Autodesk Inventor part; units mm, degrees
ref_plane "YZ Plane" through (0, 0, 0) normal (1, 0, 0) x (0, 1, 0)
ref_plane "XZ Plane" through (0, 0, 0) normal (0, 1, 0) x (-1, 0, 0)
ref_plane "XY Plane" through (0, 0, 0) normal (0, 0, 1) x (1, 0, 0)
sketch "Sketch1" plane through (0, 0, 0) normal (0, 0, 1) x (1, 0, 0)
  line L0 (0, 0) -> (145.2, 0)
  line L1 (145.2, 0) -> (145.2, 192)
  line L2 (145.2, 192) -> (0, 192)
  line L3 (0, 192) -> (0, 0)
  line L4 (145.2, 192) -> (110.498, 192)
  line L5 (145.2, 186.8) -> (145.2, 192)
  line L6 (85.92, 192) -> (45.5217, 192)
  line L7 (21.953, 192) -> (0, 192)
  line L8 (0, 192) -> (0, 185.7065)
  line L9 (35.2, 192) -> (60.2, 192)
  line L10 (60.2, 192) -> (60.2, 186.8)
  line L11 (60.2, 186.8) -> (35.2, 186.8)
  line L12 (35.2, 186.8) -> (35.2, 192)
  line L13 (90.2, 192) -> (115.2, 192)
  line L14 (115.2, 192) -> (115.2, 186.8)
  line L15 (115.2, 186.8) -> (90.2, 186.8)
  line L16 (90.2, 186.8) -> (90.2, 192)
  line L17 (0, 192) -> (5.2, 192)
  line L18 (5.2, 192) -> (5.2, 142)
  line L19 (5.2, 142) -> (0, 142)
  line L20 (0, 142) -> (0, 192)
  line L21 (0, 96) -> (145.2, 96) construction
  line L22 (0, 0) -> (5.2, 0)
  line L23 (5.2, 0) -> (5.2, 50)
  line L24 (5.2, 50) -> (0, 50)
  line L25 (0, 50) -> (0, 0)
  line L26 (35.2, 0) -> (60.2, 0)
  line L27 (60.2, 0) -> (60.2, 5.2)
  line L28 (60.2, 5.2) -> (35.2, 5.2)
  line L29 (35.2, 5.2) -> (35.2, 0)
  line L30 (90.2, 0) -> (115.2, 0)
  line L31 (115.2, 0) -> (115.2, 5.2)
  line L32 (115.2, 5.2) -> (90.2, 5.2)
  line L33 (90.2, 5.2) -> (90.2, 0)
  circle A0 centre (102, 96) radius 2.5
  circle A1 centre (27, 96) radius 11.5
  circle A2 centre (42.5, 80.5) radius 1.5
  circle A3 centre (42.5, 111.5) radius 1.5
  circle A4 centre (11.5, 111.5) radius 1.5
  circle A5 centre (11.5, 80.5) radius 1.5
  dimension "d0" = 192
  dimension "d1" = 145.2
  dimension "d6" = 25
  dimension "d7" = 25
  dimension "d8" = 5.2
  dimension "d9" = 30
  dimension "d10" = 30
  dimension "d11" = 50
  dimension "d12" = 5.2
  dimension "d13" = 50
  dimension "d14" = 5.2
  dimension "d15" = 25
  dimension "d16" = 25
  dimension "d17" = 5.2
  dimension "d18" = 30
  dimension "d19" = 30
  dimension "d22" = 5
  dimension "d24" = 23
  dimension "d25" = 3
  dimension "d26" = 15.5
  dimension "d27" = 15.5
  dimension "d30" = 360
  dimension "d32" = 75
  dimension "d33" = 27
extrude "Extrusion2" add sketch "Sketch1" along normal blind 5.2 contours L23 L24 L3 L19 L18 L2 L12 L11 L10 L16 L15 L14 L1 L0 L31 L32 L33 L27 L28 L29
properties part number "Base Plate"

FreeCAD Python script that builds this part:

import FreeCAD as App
import Part
import Sketcher
from FreeCAD import Vector
Q = App.Units.Quantity


def add_polygon(sketch, points):
    """Adds a closed chain of lines whose ends are joined by coincident constraints."""
    first, n = sketch.GeometryCount, len(points)
    for a, b in zip(points, points[1:] + points[:1]):
        sketch.addGeometry(Part.LineSegment(App.Vector(*a, 0), App.Vector(*b, 0)), False)
    for i in range(n):
        sketch.addConstraint(Sketcher.Constraint("Coincident", first + i, 2, first + (i + 1) % n, 1))

doc = App.newDocument("Part")
body = doc.addObject("PartDesign::Body", "Body")

sketch1 = body.newObject("Sketcher::SketchObject", "Sketch")
sketch1.AttachmentSupport = (doc.getObject("XY_Plane"), [""])
sketch1.MapMode = "FlatFace"
add_polygon(sketch1, [(5.2, 50), (5.2, 0), (35.2, 0), (35.2, 5.2), (60.2, 5.2), (60.2, 0), (90.2, 0), (90.2, 5.2), (115.2, 5.2), (115.2, 0), (145.2, 0), (145.2, 192), (115.2, 192), (115.2, 186.8), (90.2, 186.8), (90.2, 192), (60.2, 192), (60.2, 186.8), (35.2, 186.8), (35.2, 192), (5.2, 192), (5.2, 142), (0, 142), (0, 50)])
sketch1.addGeometry(Part.Circle(Vector(11.5, 80.5, 0), Vector(0, 0, 1), 1.5), False)
sketch1.addGeometry(Part.Circle(Vector(42.5, 80.5, 0), Vector(0, 0, 1), 1.5), False)
sketch1.addGeometry(Part.Circle(Vector(11.5, 111.5, 0), Vector(0, 0, 1), 1.5), False)
sketch1.addGeometry(Part.Circle(Vector(27, 96, 0), Vector(0, 0, 1), 11.5), False)
sketch1.addGeometry(Part.Circle(Vector(42.5, 111.5, 0), Vector(0, 0, 1), 1.5), False)
sketch1.addGeometry(Part.Circle(Vector(102, 96, 0), Vector(0, 0, 1), 2.5), False)
sketch1.addConstraint([
    Sketcher.Constraint("Vertical", 0),
    Sketcher.Constraint("Horizontal", 1),
    Sketcher.Constraint("Vertical", 2),
    Sketcher.Constraint("Horizontal", 3),
    Sketcher.Constraint("Vertical", 4),
    Sketcher.Constraint("Horizontal", 5),
    Sketcher.Constraint("Vertical", 6),
    Sketcher.Constraint("Horizontal", 7),
    Sketcher.Constraint("Vertical", 8),
    Sketcher.Constraint("Horizontal", 9),
    Sketcher.Constraint("Vertical", 10),
    Sketcher.Constraint("Horizontal", 11),
    Sketcher.Constraint("Vertical", 12),
    Sketcher.Constraint("Horizontal", 13),
    Sketcher.Constraint("Vertical", 14),
    Sketcher.Constraint("Horizontal", 15),
    Sketcher.Constraint("Vertical", 16),
    Sketcher.Constraint("Horizontal", 17),
    Sketcher.Constraint("Vertical", 18),
    Sketcher.Constraint("Horizontal", 19),
    Sketcher.Constraint("Vertical", 20),
    Sketcher.Constraint("Horizontal", 21),
    Sketcher.Constraint("Vertical", 22),
    Sketcher.Constraint("Horizontal", 23),
    Sketcher.Constraint("Equal", 24, 25),
    Sketcher.Constraint("Equal", 25, 26),
    Sketcher.Constraint("Equal", 26, 28),
    Sketcher.Constraint("PointOnObject", 0, 2, -1),
    Sketcher.Constraint("PointOnObject", 4, 2, -1),
    Sketcher.Constraint("PointOnObject", 8, 2, -1),
    Sketcher.Constraint("PointOnObject", 21, 2, -2),
    Sketcher.Constraint("Horizontal", 24, 3, 25, 3),
    Sketcher.Constraint("Horizontal", 26, 3, 28, 3),
    Sketcher.Constraint("Horizontal", 27, 3, 29, 3),
    Sketcher.Constraint("Horizontal", 3, 2, 6, 2),
    Sketcher.Constraint("Horizontal", 11, 2, 14, 2),
    Sketcher.Constraint("Horizontal", 13, 2, 16, 2),
    Sketcher.Constraint("Horizontal", 15, 2, 18, 2),
    Sketcher.Constraint("Vertical", 24, 3, 26, 3),
    Sketcher.Constraint("Vertical", 25, 3, 28, 3),
    Sketcher.Constraint("Vertical", 8, 2, 11, 2),
    Sketcher.Constraint("Vertical", 6, 2, 13, 2),
    Sketcher.Constraint("Vertical", 4, 2, 15, 2),
    Sketcher.Constraint("Vertical", 2, 2, 17, 2),
    Sketcher.Constraint("Vertical", 0, 2, 19, 2),
    Sketcher.Constraint("Equal", 1, 5),
    Sketcher.Constraint("Equal", 3, 7),
    Sketcher.Constraint("Equal", 5, 9),
    Sketcher.Constraint("Equal", 23, 2),
    Sketcher.Constraint("Equal", 8, 12),
    Sketcher.Constraint("Equal", 0, 20),
    Sketcher.Constraint("Diameter", 24, Q("3 mm")),
    Sketcher.Constraint("Diameter", 27, Q("23 mm")),
    Sketcher.Constraint("Diameter", 29, Q("5 mm")),
    Sketcher.Constraint("DistanceX", 1, 1, 1, 2, Q("30 mm")),
    Sketcher.Constraint("DistanceX", 3, 1, 3, 2, Q("25 mm")),
    Sketcher.Constraint("DistanceY", 0, 2, 0, 1, Q("50 mm")),
    Sketcher.Constraint("DistanceY", 10, 1, 10, 2, Q("192 mm")),
    Sketcher.Constraint("DistanceX", 21, 2, 21, 1, Q("5.2 mm")),
    Sketcher.Constraint("DistanceX", -1, 1, 27, 3, Q("27 mm")),
    Sketcher.Constraint("DistanceX", 27, 3, 29, 3, Q("75 mm")),
    Sketcher.Constraint("DistanceX", 24, 3, 27, 3, Q("15.5 mm")),
    Sketcher.Constraint("DistanceY", 24, 3, 27, 3, Q("15.5 mm")),
    Sketcher.Constraint("DistanceX", 27, 3, 25, 3, Q("15.5 mm")),
    Sketcher.Constraint("DistanceY", 27, 3, 26, 3, Q("15.5 mm")),
    Sketcher.Constraint("DistanceY", -1, 1, 27, 3, Q("96 mm")),
])
pad1 = body.newObject("PartDesign::Pad", "Pad")
pad1.Profile = sketch1
pad1.Length = 5.2

doc.recompute()
